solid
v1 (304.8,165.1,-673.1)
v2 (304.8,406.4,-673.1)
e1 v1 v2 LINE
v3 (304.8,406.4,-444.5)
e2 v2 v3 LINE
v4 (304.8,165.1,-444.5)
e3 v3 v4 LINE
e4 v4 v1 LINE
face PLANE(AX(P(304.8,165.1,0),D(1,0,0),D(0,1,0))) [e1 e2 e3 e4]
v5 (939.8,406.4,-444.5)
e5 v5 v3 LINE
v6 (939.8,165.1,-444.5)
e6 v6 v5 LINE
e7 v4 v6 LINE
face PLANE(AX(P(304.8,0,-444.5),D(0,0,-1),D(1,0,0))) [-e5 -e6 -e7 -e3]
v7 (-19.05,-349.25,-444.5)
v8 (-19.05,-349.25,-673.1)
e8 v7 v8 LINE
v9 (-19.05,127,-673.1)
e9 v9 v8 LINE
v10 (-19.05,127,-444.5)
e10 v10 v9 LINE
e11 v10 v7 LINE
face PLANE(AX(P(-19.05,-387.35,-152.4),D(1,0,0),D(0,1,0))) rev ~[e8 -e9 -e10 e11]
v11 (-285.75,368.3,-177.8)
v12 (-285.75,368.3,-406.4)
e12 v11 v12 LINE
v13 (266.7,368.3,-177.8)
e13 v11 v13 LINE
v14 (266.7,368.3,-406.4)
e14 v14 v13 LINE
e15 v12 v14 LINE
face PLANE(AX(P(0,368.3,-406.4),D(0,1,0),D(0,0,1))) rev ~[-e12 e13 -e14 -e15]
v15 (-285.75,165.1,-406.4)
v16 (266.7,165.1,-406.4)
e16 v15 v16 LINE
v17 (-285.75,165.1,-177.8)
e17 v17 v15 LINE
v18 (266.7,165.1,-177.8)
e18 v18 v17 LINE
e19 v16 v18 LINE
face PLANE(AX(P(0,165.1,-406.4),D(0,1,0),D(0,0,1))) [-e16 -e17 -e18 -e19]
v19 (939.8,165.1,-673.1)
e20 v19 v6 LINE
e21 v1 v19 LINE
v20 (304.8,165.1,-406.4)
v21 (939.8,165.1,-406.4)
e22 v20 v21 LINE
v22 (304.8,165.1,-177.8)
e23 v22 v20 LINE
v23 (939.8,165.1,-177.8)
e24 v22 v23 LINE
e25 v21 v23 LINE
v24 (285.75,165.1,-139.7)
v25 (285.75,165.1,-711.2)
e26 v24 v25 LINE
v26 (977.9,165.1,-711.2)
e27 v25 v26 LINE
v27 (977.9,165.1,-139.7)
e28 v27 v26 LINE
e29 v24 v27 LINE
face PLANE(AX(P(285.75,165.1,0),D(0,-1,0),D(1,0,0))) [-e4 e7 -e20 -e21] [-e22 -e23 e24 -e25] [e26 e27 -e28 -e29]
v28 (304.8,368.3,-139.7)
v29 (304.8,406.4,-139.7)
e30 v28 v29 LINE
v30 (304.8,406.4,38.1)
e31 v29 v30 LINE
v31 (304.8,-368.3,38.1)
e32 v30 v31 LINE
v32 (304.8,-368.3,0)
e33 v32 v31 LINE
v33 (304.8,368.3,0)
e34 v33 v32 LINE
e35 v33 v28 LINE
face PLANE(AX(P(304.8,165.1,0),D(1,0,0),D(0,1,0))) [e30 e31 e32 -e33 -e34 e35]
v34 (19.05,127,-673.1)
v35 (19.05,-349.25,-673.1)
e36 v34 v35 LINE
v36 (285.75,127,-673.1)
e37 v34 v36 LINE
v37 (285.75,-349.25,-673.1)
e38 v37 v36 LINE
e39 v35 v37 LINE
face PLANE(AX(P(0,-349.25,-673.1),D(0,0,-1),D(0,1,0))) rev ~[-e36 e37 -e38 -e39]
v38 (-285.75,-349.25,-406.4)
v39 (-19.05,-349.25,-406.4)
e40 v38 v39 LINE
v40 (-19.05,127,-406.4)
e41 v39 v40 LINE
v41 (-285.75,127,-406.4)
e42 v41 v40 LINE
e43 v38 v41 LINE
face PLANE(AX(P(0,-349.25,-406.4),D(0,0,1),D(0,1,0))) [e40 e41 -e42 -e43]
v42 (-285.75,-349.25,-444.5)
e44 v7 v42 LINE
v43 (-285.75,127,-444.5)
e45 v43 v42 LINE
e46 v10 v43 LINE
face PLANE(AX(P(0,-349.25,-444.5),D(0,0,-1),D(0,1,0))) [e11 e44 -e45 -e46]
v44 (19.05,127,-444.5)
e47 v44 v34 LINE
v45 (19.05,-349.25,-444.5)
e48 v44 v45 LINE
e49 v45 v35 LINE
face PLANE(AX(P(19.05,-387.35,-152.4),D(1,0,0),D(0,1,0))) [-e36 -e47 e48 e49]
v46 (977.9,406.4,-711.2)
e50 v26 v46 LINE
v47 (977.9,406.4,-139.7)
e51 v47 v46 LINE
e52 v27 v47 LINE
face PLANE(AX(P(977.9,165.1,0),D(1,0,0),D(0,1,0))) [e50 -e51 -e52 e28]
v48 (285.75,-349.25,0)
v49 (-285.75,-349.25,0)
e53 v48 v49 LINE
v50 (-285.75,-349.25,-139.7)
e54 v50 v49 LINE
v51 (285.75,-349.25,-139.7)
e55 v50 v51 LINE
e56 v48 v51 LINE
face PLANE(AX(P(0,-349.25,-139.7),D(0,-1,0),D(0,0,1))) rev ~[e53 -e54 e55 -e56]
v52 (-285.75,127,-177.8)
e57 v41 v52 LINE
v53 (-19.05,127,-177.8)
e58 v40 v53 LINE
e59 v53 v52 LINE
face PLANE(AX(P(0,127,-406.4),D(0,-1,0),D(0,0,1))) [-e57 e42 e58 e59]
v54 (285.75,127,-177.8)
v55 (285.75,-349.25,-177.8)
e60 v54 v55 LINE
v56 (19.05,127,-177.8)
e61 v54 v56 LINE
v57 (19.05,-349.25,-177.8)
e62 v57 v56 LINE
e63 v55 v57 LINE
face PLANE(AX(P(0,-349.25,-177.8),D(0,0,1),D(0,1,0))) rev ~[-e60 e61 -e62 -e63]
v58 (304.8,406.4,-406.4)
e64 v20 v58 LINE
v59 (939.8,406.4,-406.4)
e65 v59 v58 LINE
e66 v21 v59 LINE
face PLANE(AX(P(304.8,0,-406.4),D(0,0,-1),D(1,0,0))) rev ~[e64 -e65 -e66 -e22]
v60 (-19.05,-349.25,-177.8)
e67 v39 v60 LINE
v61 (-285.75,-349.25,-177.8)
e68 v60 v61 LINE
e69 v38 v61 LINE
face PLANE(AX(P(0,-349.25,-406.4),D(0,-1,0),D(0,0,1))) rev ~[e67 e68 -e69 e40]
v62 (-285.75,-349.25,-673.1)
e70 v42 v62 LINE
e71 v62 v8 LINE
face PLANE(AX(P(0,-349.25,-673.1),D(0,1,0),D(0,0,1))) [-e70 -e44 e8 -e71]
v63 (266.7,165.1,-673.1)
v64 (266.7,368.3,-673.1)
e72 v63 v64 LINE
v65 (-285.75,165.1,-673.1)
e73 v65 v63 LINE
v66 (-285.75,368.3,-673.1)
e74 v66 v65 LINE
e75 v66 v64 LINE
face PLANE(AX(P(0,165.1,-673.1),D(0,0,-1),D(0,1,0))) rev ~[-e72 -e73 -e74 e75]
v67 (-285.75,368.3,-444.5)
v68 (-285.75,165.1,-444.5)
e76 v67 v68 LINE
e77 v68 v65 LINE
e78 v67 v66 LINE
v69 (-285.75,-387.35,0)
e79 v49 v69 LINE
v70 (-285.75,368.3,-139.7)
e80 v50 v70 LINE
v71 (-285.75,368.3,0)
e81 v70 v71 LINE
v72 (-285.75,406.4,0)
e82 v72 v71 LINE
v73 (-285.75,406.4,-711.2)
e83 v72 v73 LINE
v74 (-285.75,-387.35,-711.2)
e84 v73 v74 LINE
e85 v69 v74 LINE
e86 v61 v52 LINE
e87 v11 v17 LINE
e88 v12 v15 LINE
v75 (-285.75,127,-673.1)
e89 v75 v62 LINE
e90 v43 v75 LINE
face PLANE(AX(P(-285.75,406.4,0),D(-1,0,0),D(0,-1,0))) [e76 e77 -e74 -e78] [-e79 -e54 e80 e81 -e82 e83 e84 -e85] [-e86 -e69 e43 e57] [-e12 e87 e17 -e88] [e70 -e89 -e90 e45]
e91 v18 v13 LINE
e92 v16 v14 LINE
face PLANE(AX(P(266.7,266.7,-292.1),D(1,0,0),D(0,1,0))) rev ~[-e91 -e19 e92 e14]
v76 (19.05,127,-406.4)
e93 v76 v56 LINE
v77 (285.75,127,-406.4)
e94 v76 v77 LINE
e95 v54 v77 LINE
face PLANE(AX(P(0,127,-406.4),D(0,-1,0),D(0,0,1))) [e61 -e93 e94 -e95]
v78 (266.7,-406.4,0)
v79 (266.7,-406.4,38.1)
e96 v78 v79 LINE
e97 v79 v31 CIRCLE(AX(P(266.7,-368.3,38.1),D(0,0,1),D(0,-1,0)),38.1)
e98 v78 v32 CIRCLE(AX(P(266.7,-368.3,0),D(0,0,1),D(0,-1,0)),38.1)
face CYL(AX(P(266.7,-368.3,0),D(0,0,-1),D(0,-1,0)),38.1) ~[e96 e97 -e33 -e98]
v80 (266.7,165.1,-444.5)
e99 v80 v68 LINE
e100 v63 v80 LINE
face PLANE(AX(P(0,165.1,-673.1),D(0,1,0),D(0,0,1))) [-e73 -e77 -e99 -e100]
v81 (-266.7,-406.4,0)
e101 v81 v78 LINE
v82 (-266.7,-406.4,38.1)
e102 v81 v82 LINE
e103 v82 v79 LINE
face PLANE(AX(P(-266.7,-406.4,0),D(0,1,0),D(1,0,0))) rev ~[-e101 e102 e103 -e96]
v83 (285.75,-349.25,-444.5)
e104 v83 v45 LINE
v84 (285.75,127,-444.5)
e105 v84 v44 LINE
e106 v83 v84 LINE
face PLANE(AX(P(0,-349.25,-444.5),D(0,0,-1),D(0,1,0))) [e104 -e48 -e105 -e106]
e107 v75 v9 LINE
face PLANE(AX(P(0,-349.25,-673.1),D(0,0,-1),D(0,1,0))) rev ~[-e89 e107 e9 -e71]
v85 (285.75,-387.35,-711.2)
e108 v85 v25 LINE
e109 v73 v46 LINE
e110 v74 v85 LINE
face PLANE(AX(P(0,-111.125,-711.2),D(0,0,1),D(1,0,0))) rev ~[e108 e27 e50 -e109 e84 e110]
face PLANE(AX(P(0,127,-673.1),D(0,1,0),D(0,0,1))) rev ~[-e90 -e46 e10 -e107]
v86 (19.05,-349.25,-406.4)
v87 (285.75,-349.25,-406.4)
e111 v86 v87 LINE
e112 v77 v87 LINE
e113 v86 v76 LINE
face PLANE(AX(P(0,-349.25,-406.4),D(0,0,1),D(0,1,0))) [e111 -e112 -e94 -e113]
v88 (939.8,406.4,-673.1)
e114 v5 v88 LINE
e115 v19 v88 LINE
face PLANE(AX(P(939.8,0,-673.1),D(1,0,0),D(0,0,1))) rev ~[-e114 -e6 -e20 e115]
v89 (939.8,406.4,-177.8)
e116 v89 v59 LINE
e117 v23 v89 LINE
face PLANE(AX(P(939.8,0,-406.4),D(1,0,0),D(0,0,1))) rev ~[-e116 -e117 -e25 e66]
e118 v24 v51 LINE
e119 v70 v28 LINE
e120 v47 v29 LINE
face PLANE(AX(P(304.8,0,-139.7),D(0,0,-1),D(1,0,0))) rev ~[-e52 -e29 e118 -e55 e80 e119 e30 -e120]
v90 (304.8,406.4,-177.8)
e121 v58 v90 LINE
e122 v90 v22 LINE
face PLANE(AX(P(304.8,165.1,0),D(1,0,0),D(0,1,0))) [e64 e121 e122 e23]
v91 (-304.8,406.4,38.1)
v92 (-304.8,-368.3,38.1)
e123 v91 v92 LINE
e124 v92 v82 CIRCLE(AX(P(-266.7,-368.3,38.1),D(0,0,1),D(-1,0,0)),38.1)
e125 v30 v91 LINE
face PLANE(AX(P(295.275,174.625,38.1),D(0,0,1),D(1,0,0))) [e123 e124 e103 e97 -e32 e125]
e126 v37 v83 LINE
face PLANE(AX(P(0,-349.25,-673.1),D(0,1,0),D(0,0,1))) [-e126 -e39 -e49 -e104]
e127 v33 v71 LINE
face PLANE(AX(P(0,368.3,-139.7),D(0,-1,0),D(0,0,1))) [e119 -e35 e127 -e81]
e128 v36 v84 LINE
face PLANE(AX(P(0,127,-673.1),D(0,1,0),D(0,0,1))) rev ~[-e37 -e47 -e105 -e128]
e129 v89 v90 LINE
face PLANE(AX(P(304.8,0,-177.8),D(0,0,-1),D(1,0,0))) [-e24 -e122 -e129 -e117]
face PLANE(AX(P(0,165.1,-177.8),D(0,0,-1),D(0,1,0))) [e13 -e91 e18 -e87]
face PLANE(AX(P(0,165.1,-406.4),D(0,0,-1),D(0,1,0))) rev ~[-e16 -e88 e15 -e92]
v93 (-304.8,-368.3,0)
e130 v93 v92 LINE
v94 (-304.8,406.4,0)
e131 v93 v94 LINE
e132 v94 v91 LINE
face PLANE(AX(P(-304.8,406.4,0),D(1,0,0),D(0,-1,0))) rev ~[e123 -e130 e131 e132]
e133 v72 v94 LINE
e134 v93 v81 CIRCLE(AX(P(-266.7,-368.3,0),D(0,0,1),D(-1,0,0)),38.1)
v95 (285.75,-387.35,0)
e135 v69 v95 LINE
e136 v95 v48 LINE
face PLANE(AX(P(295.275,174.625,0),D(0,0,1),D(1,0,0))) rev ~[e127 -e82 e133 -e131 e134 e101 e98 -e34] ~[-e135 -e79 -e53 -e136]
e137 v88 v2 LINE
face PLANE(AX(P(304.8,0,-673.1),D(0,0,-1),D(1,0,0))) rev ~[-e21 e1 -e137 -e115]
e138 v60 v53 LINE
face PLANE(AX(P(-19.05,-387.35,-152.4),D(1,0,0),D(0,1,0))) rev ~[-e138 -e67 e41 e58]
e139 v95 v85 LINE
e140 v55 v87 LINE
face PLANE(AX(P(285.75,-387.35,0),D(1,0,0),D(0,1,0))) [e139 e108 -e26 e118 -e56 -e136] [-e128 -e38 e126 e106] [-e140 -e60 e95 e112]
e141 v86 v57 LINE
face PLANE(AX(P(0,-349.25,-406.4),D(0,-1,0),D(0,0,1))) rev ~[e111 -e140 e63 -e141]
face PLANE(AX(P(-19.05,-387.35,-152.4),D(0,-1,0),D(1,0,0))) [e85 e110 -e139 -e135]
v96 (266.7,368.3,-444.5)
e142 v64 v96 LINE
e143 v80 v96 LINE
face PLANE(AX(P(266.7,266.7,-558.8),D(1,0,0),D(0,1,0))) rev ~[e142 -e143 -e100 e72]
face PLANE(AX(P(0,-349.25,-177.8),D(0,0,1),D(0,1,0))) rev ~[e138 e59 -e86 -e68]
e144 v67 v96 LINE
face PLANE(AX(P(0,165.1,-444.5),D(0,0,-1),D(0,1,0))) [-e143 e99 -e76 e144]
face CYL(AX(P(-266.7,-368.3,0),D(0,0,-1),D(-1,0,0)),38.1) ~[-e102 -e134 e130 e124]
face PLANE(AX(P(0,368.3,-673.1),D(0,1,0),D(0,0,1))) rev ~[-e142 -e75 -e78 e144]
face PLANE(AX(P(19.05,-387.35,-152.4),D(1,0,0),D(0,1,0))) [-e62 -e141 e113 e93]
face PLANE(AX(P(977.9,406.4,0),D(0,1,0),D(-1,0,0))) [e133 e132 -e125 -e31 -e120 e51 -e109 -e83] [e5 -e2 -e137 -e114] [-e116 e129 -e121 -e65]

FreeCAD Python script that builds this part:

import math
import FreeCAD as App
import Part
import Sketcher
Q = App.Units.Quantity


def add_polygon(sketch, points):
    """Adds a closed chain of lines whose ends are joined by coincident constraints."""
    first, n = sketch.GeometryCount, len(points)
    for a, b in zip(points, points[1:] + points[:1]):
        sketch.addGeometry(Part.LineSegment(App.Vector(*a, 0), App.Vector(*b, 0)), False)
    for i in range(n):
        sketch.addConstraint(Sketcher.Constraint("Coincident", first + i, 2, first + (i + 1) % n, 1))

doc = App.newDocument("Part")
body = doc.addObject("PartDesign::Body", "Body")

# Sketch on XY plane
sketch1 = doc.addObject("Sketcher::SketchObject", "Sketch")
body.addObject(sketch1)
sketch1.AttachmentSupport = (doc.XY_Plane, [""])
sketch1.MapMode = "FlatFace"
sketch1.addGeometry([
    Part.LineSegment(App.Vector(286, 184, 0), App.Vector(305, 184, 0)),  # 0
    Part.LineSegment(App.Vector(305, 184, 0), App.Vector(305, 406, 0)),  # 1
    Part.LineSegment(App.Vector(305, 406, 0), App.Vector(-305, 406, 0)),  # 2
    Part.LineSegment(App.Vector(-305, 406, 0), App.Vector(-305, -368, 0)),  # 3
    Part.ArcOfCircle(Part.Circle(App.Vector(-267, -368, 0), App.Vector(0, 0, 1), 38), math.radians(180), math.radians(270)),  # 4
    Part.LineSegment(App.Vector(-267, -406, 0), App.Vector(267, -406, 0)),  # 5
    Part.ArcOfCircle(Part.Circle(App.Vector(267, -368, 0), App.Vector(0, 0, 1), 38), math.radians(-90), math.radians(0)),  # 6
    Part.LineSegment(App.Vector(305, -368, 0), App.Vector(305, 165, 0)),  # 7
    Part.LineSegment(App.Vector(305, 165, 0), App.Vector(286, 165, 0)),  # 8
    Part.LineSegment(App.Vector(286, 165, 0), App.Vector(286, 184, 0)),  # 9
], False)
sketch1.addConstraint([
    Sketcher.Constraint("Coincident", 0, 2, 1, 1),
    Sketcher.Constraint("Coincident", 1, 2, 2, 1),
    Sketcher.Constraint("Coincident", 2, 2, 3, 1),
    Sketcher.Constraint("Tangent", 3, 2, 4, 1),
    Sketcher.Constraint("Tangent", 4, 2, 5, 1),
    Sketcher.Constraint("Tangent", 5, 2, 6, 1),
    Sketcher.Constraint("Tangent", 6, 2, 7, 1),
    Sketcher.Constraint("Coincident", 7, 2, 8, 1),
    Sketcher.Constraint("Coincident", 8, 2, 9, 1),
    Sketcher.Constraint("Coincident", 9, 2, 0, 1),
    Sketcher.Constraint("Horizontal", 0),
    Sketcher.Constraint("Vertical", 1),
    Sketcher.Constraint("Horizontal", 2),
    Sketcher.Constraint("Vertical", 3),
    Sketcher.Constraint("Horizontal", 5),
    Sketcher.Constraint("Vertical", 7),
    Sketcher.Constraint("Horizontal", 8),
    Sketcher.Constraint("Vertical", 9),
    Sketcher.Constraint("Equal", 4, 6),
    Sketcher.Constraint("Vertical", 1, 2, 6, 2),
    Sketcher.Constraint("Equal", 5, 7),
    Sketcher.Constraint("Equal", 8, 9),
    Sketcher.Constraint("Radius", 4, Q("1.5 in")),
    Sketcher.Constraint("DistanceX", 2, 2, 2, 1, Q("24 in")),
    Sketcher.Constraint("DistanceY", 3, 2, 3, 1, Q("30.5 in")),
    Sketcher.Constraint("DistanceX", -1, 1, 0, 2, Q("12 in")),
    Sketcher.Constraint("DistanceY", -1, 1, 1, 2, Q("16 in")),
    Sketcher.Constraint("DistanceX", 0, 1, 0, 2, Q("0.75 in")),
])
pad1 = doc.addObject("PartDesign::Pad", "Pad")
body.addObject(pad1)
pad1.Profile = sketch1
pad1.Length = Q("1.5 in")
body2 = doc.addObject("PartDesign::Body", "Body001")

# Sketch on XY plane
sketch2 = doc.addObject("Sketcher::SketchObject", "Sketch001")
body2.addObject(sketch2)
sketch2.AttachmentSupport = (doc.getObject("XY_Plane001"), [""])
sketch2.MapMode = "FlatFace"
add_polygon(sketch2, [(286, 184), (305, 184), (305, 406), (-286, 406), (-286, -387), (286, -387)])  # lines 0-5
sketch2.addConstraint([
    Sketcher.Constraint("Horizontal", 0),
    Sketcher.Constraint("Vertical", 1),
    Sketcher.Constraint("Horizontal", 2),
    Sketcher.Constraint("Vertical", 3),
    Sketcher.Constraint("Horizontal", 4),
    Sketcher.Constraint("Vertical", 5),
    Sketcher.Constraint("Equal", 4, 5),
    Sketcher.Constraint("DistanceX", 4, 1, 4, 2, Q("22.5 in")),
    Sketcher.Constraint("DistanceX", -1, 1, 0, 2, Q("12 in")),
    Sketcher.Constraint("DistanceY", -1, 1, 1, 2, Q("16 in")),
    Sketcher.Constraint("DistanceX", 0, 1, 0, 2, Q("0.75 in")),
    Sketcher.Constraint("DistanceY", 1, 1, 1, 2, Q("8.75 in")),
])
pad2 = doc.addObject("PartDesign::Pad", "Pad001")
body2.addObject(pad2)
pad2.Profile = sketch2
pad2.Length = Q("28 in")
pad2.Reversed = True
body3 = doc.addObject("PartDesign::Body", "Body002")

# Sketch on XY plane
sketch3 = doc.addObject("Sketcher::SketchObject", "Sketch002")
body3.addObject(sketch3)
sketch3.AttachmentSupport = (doc.getObject("XY_Plane002"), [""])
sketch3.MapMode = "FlatFace"
add_polygon(sketch3, [(305, 406), (305, 165), (978, 165), (978, 406)])  # lines 0-3
sketch3.addConstraint([
    Sketcher.Constraint("Vertical", 0),
    Sketcher.Constraint("Horizontal", 1),
    Sketcher.Constraint("Vertical", 2),
    Sketcher.Constraint("Horizontal", 3),
    Sketcher.Constraint("DistanceX", 1, 1, 1, 2, Q("26.5 in")),
    Sketcher.Constraint("DistanceY", 0, 2, 0, 1, Q("9.5 in")),
    Sketcher.Constraint("DistanceX", -1, 1, 0, 2, Q("12 in")),
    Sketcher.Constraint("DistanceY", -1, 1, 2, 2, Q("16 in")),
])
pad3 = doc.addObject("PartDesign::Pad", "Pad002")
body3.addObject(pad3)
pad3.Profile = sketch3
pad3.Length = Q("28 in")
pad3.Reversed = True

# Sketch on XZ plane
sketch4 = doc.addObject("Sketcher::SketchObject", "Sketch003")
body3.addObject(sketch4)
sketch4.AttachmentSupport = (doc.getObject("XZ_Plane002"), [""])
sketch4.MapMode = "FlatFace"
add_polygon(sketch4, [(305, 0), (305, -140), (978, -140), (978, 0)])  # lines 0-3
add_polygon(sketch4, [(305, -178), (305, -406), (940, -406), (940, -178)])  # lines 4-7
add_polygon(sketch4, [(305, -444), (305, -673), (940, -673), (940, -444)])  # lines 8-11
sketch4.addConstraint([
    Sketcher.Constraint("Vertical", 0),
    Sketcher.Constraint("Horizontal", 1),
    Sketcher.Constraint("Vertical", 2),
    Sketcher.Constraint("Horizontal", 3),
    Sketcher.Constraint("Vertical", 4),
    Sketcher.Constraint("Horizontal", 5),
    Sketcher.Constraint("Vertical", 6),
    Sketcher.Constraint("Horizontal", 7),
    Sketcher.Constraint("Vertical", 8),
    Sketcher.Constraint("Horizontal", 9),
    Sketcher.Constraint("Vertical", 10),
    Sketcher.Constraint("Horizontal", 11),
    Sketcher.Constraint("PointOnObject", 2, 2, -1),
    Sketcher.Constraint("Vertical", 3, 2, 4, 2),
    Sketcher.Constraint("Vertical", 7, 2, 8, 2),
    Sketcher.Constraint("Vertical", 6, 2, 9, 2),
    Sketcher.Constraint("Equal", 6, 8),
    Sketcher.Constraint("DistanceX", 5, 1, 5, 2, Q("25 in")),
    Sketcher.Constraint("DistanceY", 4, 2, 4, 1, Q("9 in")),
    Sketcher.Constraint("DistanceX", 1, 1, 1, 2, Q("26.5 in")),
    Sketcher.Constraint("DistanceY", 0, 2, 0, 1, Q("5.5 in")),
    Sketcher.Constraint("DistanceX", -1, 1, 0, 2, Q("12 in")),
    Sketcher.Constraint("DistanceY", 4, 2, -1, 1, Q("16 in")),
    Sketcher.Constraint("DistanceY", 8, 2, 0, 2, Q("21 in")),
])
pocket1 = doc.addObject("PartDesign::Pocket", "Pocket")
body3.addObject(pocket1)
pocket1.Profile = sketch4
pocket1.Type = "ThroughAll"
doc.recompute()

boolean = doc.addObject("PartDesign::Boolean", "Boolean")
body.addObject(boolean)
boolean.Type = "Fuse"
boolean.addObjects([body2])

# Sketch on XY plane
sketch5 = doc.addObject("Sketcher::SketchObject", "Sketch004")
body.addObject(sketch5)
sketch5.AttachmentSupport = (doc.XY_Plane, [""])
sketch5.MapMode = "FlatFace"
add_polygon(sketch5, [(286, 184), (286, 165), (305, 165), (305, 184)])  # lines 0-3
sketch5.addConstraint([
    Sketcher.Constraint("Vertical", 0),
    Sketcher.Constraint("Horizontal", 1),
    Sketcher.Constraint("Vertical", 2),
    Sketcher.Constraint("Horizontal", 3),
    Sketcher.Constraint("Equal", 3, 0),
    Sketcher.Constraint("DistanceX", -1, 1, 1, 2, Q("12 in")),
    Sketcher.Constraint("DistanceX", 1, 1, 1, 2, Q("0.75 in")),
    Sketcher.Constraint("DistanceY", -1, 1, 0, 2, Q("6.5 in")),
])
pad4 = doc.addObject("PartDesign::Pad", "Pad003")
body.addObject(pad4)
pad4.Profile = sketch5
pad4.Length = Q("1.5 in")
doc.recompute()

boolean2 = doc.addObject("PartDesign::Boolean", "Boolean001")
body.addObject(boolean2)
boolean2.Type = "Fuse"
boolean2.addObjects([body3])

# Sketch on XY plane
sketch6 = doc.addObject("Sketcher::SketchObject", "Sketch005")
body.addObject(sketch6)
sketch6.AttachmentSupport = (doc.XY_Plane, [""])
sketch6.MapMode = "FlatFace"
add_polygon(sketch6, [(286, 184), (286, 165), (305, 165), (305, 184)])  # lines 0-3
sketch6.addConstraint([
    Sketcher.Constraint("Vertical", 0),
    Sketcher.Constraint("Horizontal", 1),
    Sketcher.Constraint("Vertical", 2),
    Sketcher.Constraint("Horizontal", 3),
    Sketcher.Constraint("Equal", 3, 0),
    Sketcher.Constraint("DistanceX", -1, 1, 1, 2, Q("12 in")),
    Sketcher.Constraint("DistanceX", 1, 1, 1, 2, Q("0.75 in")),
    Sketcher.Constraint("DistanceY", -1, 1, 0, 2, Q("6.5 in")),
])
pad5 = doc.addObject("PartDesign::Pad", "Pad004")
body.addObject(pad5)
pad5.Profile = sketch6
pad5.Length = Q("28 in")
pad5.Reversed = True

# Sketch on YZ plane
sketch7 = doc.addObject("Sketcher::SketchObject", "Sketch006")
body.addObject(sketch7)
sketch7.AttachmentSupport = (doc.YZ_Plane, [""])
sketch7.MapMode = "FlatFace"
add_polygon(sketch7, [(-349, 0), (-349, -140), (368, -140), (368, 0)])  # lines 0-3
add_polygon(sketch7, [(-349, -178), (-349, -406), (127, -406), (127, -178)])  # lines 4-7
add_polygon(sketch7, [(-349, -444), (-349, -673), (127, -673), (127, -444)])  # lines 8-11
sketch7.addConstraint([
    Sketcher.Constraint("Vertical", 0),
    Sketcher.Constraint("Horizontal", 1),
    Sketcher.Constraint("Vertical", 2),
    Sketcher.Constraint("Horizontal", 3),
    Sketcher.Constraint("Vertical", 4),
    Sketcher.Constraint("Horizontal", 5),
    Sketcher.Constraint("Vertical", 6),
    Sketcher.Constraint("Horizontal", 7),
    Sketcher.Constraint("Vertical", 8),
    Sketcher.Constraint("Horizontal", 9),
    Sketcher.Constraint("Vertical", 10),
    Sketcher.Constraint("Horizontal", 11),
    Sketcher.Constraint("PointOnObject", 2, 2, -1),
    Sketcher.Constraint("Vertical", 3, 2, 4, 2),
    Sketcher.Constraint("Vertical", 7, 2, 8, 2),
    Sketcher.Constraint("Vertical", 6, 2, 9, 2),
    Sketcher.Constraint("Equal", 6, 8),
    Sketcher.Constraint("DistanceY", 4, 2, 4, 1, Q("9 in")),
    Sketcher.Constraint("DistanceY", 0, 2, 0, 1, Q("5.5 in")),
    Sketcher.Constraint("DistanceY", 4, 2, -1, 1, Q("16 in")),
    Sketcher.Constraint("DistanceX", -1, 1, 5, 2, Q("5 in")),
    Sketcher.Constraint("DistanceY", 8, 2, 0, 2, Q("21 in")),
    Sketcher.Constraint("DistanceX", 1, 1, 1, 2, Q("28.25 in")),
    Sketcher.Constraint("DistanceX", 5, 1, 5, 2, Q("18.75 in")),
])
pocket2 = doc.addObject("PartDesign::Pocket", "Pocket001")
body.addObject(pocket2)
pocket2.Profile = sketch7
pocket2.Length = Q("32 in")
pocket2.Midplane = True

# Sketch on YZ plane
sketch8 = doc.addObject("Sketcher::SketchObject", "Sketch007")
body.addObject(sketch8)
sketch8.AttachmentSupport = (doc.YZ_Plane, [""])
sketch8.MapMode = "FlatFace"
add_polygon(sketch8, [(165, -178), (165, -406), (368, -406), (368, -178)])  # lines 0-3
add_polygon(sketch8, [(165, -444), (165, -673), (368, -673), (368, -444)])  # lines 4-7
sketch8.addConstraint([
    Sketcher.Constraint("Vertical", 0),
    Sketcher.Constraint("Horizontal", 1),
    Sketcher.Constraint("Vertical", 2),
    Sketcher.Constraint("Horizontal", 3),
    Sketcher.Constraint("Vertical", 4),
    Sketcher.Constraint("Horizontal", 5),
    Sketcher.Constraint("Vertical", 6),
    Sketcher.Constraint("Horizontal", 7),
    Sketcher.Constraint("Vertical", 3, 2, 4, 2),
    Sketcher.Constraint("Vertical", 2, 2, 5, 2),
    Sketcher.Constraint("Equal", 2, 4),
    Sketcher.Constraint("DistanceX", 1, 1, 1, 2, Q("8 in")),
    Sketcher.Constraint("DistanceY", 0, 2, 0, 1, Q("9 in")),
    Sketcher.Constraint("DistanceY", 0, 2, -1, 1, Q("16 in")),
    Sketcher.Constraint("DistanceX", -1, 1, 0, 2, Q("6.5 in")),
    Sketcher.Constraint("DistanceY", 4, 2, -1, 1, Q("26.5 in")),
])
pocket3 = doc.addObject("PartDesign::Pocket", "Pocket002")
body.addObject(pocket3)
pocket3.Profile = sketch8
pocket3.Type = "TwoLengths"
pocket3.Length = Q("24 in")
pocket3.Length2 = Q("10.5 in")

# Sketch on XY plane
sketch9 = doc.addObject("Sketcher::SketchObject", "Sketch008")
body.addObject(sketch9)
sketch9.AttachmentSupport = (doc.XY_Plane, [""])
sketch9.MapMode = "FlatFace"
sketch9.AttachmentOffset = App.Placement(App.Vector(0, 0, -6 * 25.4), App.Rotation())
add_polygon(sketch9, [(-19, 165), (-19, -387), (19, -387), (19, 165)])  # lines 0-3
sketch9.addConstraint([
    Sketcher.Constraint("Vertical", 0),
    Sketcher.Constraint("Horizontal", 1),
    Sketcher.Constraint("Vertical", 2),
    Sketcher.Constraint("Horizontal", 3),
    Sketcher.Constraint("DistanceX", 1, 1, 1, 2, Q("1.5 in")),
    Sketcher.Constraint("DistanceY", 0, 2, 0, 1, Q("21.75 in")),
    Sketcher.Constraint("DistanceY", -1, 1, 2, 2, Q("6.5 in")),
    Sketcher.Constraint("DistanceX", 0, 2, -1, 1, Q("0.75 in")),
])
pad6 = doc.addObject("PartDesign::Pad", "Pad005")
body.addObject(pad6)
pad6.Profile = sketch9
pad6.Length = Q("22 in")
pad6.Reversed = True

doc.recompute()
